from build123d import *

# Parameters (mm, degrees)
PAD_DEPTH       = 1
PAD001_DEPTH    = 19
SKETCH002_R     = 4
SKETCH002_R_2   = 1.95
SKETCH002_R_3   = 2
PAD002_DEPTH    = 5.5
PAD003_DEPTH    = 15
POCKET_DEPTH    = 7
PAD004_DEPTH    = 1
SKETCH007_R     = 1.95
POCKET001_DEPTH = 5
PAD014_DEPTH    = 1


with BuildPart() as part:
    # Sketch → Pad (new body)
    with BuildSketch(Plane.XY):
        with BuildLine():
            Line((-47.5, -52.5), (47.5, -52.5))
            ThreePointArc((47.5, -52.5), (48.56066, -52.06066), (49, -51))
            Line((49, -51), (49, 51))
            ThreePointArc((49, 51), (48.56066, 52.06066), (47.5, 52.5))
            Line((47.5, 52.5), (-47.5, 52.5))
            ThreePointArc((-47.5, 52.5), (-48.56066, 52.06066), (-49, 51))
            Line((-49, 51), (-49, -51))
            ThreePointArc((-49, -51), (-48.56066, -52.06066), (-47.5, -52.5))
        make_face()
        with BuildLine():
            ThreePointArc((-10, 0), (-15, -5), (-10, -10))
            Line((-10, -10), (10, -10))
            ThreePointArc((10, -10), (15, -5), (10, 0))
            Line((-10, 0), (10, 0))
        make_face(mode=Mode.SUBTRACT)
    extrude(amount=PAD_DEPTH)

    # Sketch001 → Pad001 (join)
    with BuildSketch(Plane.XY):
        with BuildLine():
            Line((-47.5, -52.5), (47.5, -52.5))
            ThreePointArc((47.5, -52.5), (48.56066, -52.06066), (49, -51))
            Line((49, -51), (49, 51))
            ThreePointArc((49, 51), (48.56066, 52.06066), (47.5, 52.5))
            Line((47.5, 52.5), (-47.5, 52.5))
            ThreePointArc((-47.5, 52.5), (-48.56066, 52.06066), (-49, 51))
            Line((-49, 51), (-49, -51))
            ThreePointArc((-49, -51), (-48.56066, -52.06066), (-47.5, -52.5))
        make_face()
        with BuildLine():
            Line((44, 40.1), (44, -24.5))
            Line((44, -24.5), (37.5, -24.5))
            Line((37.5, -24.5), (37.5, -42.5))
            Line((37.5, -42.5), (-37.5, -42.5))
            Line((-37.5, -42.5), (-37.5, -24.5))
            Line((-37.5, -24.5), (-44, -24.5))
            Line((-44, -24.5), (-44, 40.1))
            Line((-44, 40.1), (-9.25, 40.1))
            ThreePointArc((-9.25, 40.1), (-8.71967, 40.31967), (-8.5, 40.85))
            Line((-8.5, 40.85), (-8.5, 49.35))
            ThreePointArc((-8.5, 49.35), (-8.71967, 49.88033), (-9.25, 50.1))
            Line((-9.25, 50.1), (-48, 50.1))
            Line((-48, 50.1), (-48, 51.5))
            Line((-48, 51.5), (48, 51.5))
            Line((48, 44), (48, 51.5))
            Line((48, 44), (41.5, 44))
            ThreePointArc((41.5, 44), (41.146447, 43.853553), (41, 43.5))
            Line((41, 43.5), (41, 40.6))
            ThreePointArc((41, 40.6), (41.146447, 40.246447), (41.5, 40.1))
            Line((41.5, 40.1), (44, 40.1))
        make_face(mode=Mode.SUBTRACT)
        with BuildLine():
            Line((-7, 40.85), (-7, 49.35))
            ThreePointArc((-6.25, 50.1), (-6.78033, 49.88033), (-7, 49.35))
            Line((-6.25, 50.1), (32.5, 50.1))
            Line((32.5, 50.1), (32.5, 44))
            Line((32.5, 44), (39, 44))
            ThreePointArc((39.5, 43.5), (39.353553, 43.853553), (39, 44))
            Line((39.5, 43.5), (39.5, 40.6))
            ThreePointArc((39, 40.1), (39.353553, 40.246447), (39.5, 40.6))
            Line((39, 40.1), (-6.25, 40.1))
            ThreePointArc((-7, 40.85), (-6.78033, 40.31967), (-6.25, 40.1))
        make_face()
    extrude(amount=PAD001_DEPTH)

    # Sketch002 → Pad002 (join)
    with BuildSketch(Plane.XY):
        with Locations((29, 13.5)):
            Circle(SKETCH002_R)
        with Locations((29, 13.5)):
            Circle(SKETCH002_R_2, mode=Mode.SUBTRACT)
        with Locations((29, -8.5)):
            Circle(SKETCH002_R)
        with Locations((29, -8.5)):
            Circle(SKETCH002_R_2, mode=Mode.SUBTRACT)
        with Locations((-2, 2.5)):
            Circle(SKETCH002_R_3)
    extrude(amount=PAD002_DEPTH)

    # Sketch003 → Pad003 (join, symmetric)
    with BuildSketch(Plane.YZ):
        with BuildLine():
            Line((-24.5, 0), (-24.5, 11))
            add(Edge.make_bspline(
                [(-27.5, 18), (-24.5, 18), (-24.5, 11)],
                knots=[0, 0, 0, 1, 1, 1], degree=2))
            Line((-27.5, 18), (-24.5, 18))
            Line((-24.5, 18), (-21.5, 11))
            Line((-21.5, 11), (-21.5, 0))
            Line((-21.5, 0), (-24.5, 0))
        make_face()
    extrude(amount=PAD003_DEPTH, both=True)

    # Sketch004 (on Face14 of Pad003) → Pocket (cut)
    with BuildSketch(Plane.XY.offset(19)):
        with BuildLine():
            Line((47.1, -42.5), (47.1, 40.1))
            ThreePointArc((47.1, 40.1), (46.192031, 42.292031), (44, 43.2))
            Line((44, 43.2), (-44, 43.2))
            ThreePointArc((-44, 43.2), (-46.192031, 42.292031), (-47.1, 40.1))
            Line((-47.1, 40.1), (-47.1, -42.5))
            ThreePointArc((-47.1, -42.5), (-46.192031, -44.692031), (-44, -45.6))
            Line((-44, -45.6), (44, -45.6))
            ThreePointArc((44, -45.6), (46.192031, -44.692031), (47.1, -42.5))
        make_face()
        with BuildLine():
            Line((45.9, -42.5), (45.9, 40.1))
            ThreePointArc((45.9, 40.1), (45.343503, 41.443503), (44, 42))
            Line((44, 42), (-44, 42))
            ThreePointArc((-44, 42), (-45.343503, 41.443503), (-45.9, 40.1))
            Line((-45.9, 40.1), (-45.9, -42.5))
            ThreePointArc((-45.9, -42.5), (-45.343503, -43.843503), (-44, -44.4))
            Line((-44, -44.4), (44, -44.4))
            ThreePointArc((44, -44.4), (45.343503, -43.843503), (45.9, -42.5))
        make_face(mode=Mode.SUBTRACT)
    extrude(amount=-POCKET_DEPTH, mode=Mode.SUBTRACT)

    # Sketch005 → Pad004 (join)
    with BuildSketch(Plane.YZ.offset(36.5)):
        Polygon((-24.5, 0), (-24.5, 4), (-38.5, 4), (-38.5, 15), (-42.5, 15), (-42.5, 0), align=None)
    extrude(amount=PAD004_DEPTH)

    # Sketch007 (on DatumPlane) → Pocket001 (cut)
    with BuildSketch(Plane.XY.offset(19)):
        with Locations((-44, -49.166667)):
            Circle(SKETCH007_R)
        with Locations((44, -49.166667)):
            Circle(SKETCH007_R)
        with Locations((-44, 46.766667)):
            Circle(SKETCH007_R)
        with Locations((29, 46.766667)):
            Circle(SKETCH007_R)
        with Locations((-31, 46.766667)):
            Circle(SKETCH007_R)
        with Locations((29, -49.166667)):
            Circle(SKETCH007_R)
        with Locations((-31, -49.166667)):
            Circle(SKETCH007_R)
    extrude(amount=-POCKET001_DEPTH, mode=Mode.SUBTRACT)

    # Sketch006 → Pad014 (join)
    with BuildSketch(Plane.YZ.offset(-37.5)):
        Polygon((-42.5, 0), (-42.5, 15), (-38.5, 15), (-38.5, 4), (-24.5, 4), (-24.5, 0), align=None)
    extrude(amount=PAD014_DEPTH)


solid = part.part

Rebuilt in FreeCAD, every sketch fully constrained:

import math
import FreeCAD as App
import Part
import Sketcher
from FreeCAD import Vector
Q = App.Units.Quantity


def add_polygon(sketch, points):
    """Adds a closed chain of lines whose ends are joined by coincident constraints."""
    first, n = sketch.GeometryCount, len(points)
    for a, b in zip(points, points[1:] + points[:1]):
        sketch.addGeometry(Part.LineSegment(App.Vector(*a, 0), App.Vector(*b, 0)), False)
    for i in range(n):
        sketch.addConstraint(Sketcher.Constraint("Coincident", first + i, 2, first + (i + 1) % n, 1))

doc = App.newDocument("Part")
body = doc.addObject("PartDesign::Body", "Body")

# Sketch on XY plane
sketch1 = doc.addObject("Sketcher::SketchObject", "Sketch")
body.addObject(sketch1)
sketch1.AttachmentSupport = (doc.XY_Plane, [""])
sketch1.MapMode = "FlatFace"
sketch1.addGeometry(Part.LineSegment(Vector(-47.5, -52.5, 0), Vector(47.5, -52.5, 0)), False)
sketch1.addGeometry(Part.ArcOfCircle(Part.Circle(Vector(47.5, -51, 0), Vector(0, 0, 1), 1.5), math.radians(-90), math.radians(0)), False)
sketch1.addGeometry(Part.LineSegment(Vector(49, -51, 0), Vector(49, 51, 0)), False)
sketch1.addGeometry(Part.ArcOfCircle(Part.Circle(Vector(47.5, 51, 0), Vector(0, 0, 1), 1.5), math.radians(0), math.radians(90)), False)
sketch1.addGeometry(Part.LineSegment(Vector(47.5, 52.5, 0), Vector(-47.5, 52.5, 0)), False)
sketch1.addGeometry(Part.ArcOfCircle(Part.Circle(Vector(-47.5, 51, 0), Vector(0, 0, 1), 1.5), math.radians(90), math.radians(180)), False)
sketch1.addGeometry(Part.LineSegment(Vector(-49, 51, 0), Vector(-49, -51, 0)), False)
sketch1.addGeometry(Part.ArcOfCircle(Part.Circle(Vector(-47.5, -51, 0), Vector(0, 0, 1), 1.5), math.radians(-180), math.radians(-90)), False)
sketch1.addGeometry(Part.ArcOfCircle(Part.Circle(Vector(-10, -5, 0), Vector(0, 0, 1), 5), math.radians(90), math.radians(270)), False)
sketch1.addGeometry(Part.LineSegment(Vector(-10, 0, 0), Vector(10, 0, 0)), False)
sketch1.addGeometry(Part.ArcOfCircle(Part.Circle(Vector(10, -5, 0), Vector(0, 0, 1), 5), math.radians(-90), math.radians(90)), False)
sketch1.addGeometry(Part.LineSegment(Vector(10, -10, 0), Vector(-10, -10, 0)), False)
sketch1.addConstraint(Sketcher.Constraint("Tangent", 0, 2, 1, 1))
sketch1.addConstraint(Sketcher.Constraint("Tangent", 1, 2, 2, 1))
sketch1.addConstraint(Sketcher.Constraint("Tangent", 2, 2, 3, 1))
sketch1.addConstraint(Sketcher.Constraint("Tangent", 3, 2, 4, 1))
sketch1.addConstraint(Sketcher.Constraint("Tangent", 4, 2, 5, 1))
sketch1.addConstraint(Sketcher.Constraint("Tangent", 5, 2, 6, 1))
sketch1.addConstraint(Sketcher.Constraint("Tangent", 6, 2, 7, 1))
sketch1.addConstraint(Sketcher.Constraint("Tangent", 7, 2, 0, 1))
sketch1.addConstraint(Sketcher.Constraint("Tangent", 8, 1, 9, 1))
sketch1.addConstraint(Sketcher.Constraint("Tangent", 9, 2, 10, 2))
sketch1.addConstraint(Sketcher.Constraint("Tangent", 10, 1, 11, 1))
sketch1.addConstraint(Sketcher.Constraint("Tangent", 11, 2, 8, 2))
sketch1.addConstraint(Sketcher.Constraint("Horizontal", 0))
sketch1.addConstraint(Sketcher.Constraint("Vertical", 2))
sketch1.addConstraint(Sketcher.Constraint("Horizontal", 4))
sketch1.addConstraint(Sketcher.Constraint("Vertical", 6))
sketch1.addConstraint(Sketcher.Constraint("Horizontal", 9))
sketch1.addConstraint(Sketcher.Constraint("Horizontal", 11))
sketch1.addConstraint(Sketcher.Constraint("Equal", 1, 3))
sketch1.addConstraint(Sketcher.Constraint("Equal", 3, 5))
sketch1.addConstraint(Sketcher.Constraint("Equal", 5, 7))
sketch1.addConstraint(Sketcher.Constraint("Symmetric", 1, 3, 5, 3, -1, 1))
sketch1.addConstraint(Sketcher.Constraint("Symmetric", 8, 1, 9, 2, -1, 1))
sketch1.addConstraint(Sketcher.Constraint("Radius", 8, Q("5 mm")))
sketch1.addConstraint(Sketcher.Constraint("Radius", 1, Q("1.500001 mm")))
sketch1.addConstraint(Sketcher.Constraint("DistanceX", 0, 1, 0, 2, Q("95 mm")))
sketch1.addConstraint(Sketcher.Constraint("DistanceX", 9, 1, 9, 2, Q("20 mm")))
sketch1.addConstraint(Sketcher.Constraint("DistanceY", 2, 1, 2, 2, Q("102 mm")))
pad1 = doc.addObject("PartDesign::Pad", "Pad")
body.addObject(pad1)
pad1.Profile = sketch1
pad1.Length = 1

# Sketch on XY plane
sketch2 = doc.addObject("Sketcher::SketchObject", "Sketch001")
body.addObject(sketch2)
sketch2.AttachmentSupport = (doc.XY_Plane, [""])
sketch2.MapMode = "FlatFace"
sketch2.addGeometry(Part.LineSegment(Vector(-47.5, -52.5, 0), Vector(47.5, -52.5, 0)), False)
sketch2.addGeometry(Part.ArcOfCircle(Part.Circle(Vector(47.5, -51, 0), Vector(0, 0, 1), 1.5), math.radians(-90), math.radians(0)), False)
sketch2.addGeometry(Part.LineSegment(Vector(49, -51, 0), Vector(49, 51, 0)), False)
sketch2.addGeometry(Part.ArcOfCircle(Part.Circle(Vector(47.5, 51, 0), Vector(0, 0, 1), 1.5), math.radians(0), math.radians(90)), False)
sketch2.addGeometry(Part.LineSegment(Vector(47.5, 52.5, 0), Vector(-47.5, 52.5, 0)), False)
sketch2.addGeometry(Part.ArcOfCircle(Part.Circle(Vector(-47.5, 51, 0), Vector(0, 0, 1), 1.5), math.radians(90), math.radians(180)), False)
sketch2.addGeometry(Part.LineSegment(Vector(-49, 51, 0), Vector(-49, -51, 0)), False)
sketch2.addGeometry(Part.ArcOfCircle(Part.Circle(Vector(-47.5, -51, 0), Vector(0, 0, 1), 1.5), math.radians(-180), math.radians(-90)), False)
sketch2.addGeometry(Part.LineSegment(Vector(41.5, 40.1, 0), Vector(44, 40.1, 0)), False)
sketch2.addGeometry(Part.LineSegment(Vector(44, 40.1, 0), Vector(44, -24.5, 0)), False)
sketch2.addGeometry(Part.LineSegment(Vector(44, -24.5, 0), Vector(37.5, -24.5, 0)), False)
sketch2.addGeometry(Part.LineSegment(Vector(37.5, -24.5, 0), Vector(37.5, -42.5, 0)), False)
sketch2.addGeometry(Part.LineSegment(Vector(37.5, -42.5, 0), Vector(-37.5, -42.5, 0)), False)
sketch2.addGeometry(Part.LineSegment(Vector(-37.5, -42.5, 0), Vector(-37.5, -24.5, 0)), False)
sketch2.addGeometry(Part.LineSegment(Vector(-37.5, -24.5, 0), Vector(-44, -24.5, 0)), False)
sketch2.addGeometry(Part.LineSegment(Vector(-44, -24.5, 0), Vector(-44, 40.1, 0)), False)
sketch2.addGeometry(Part.LineSegment(Vector(-44, 40.1, 0), Vector(-9.2, 40.1, 0)), False)
sketch2.addGeometry(Part.ArcOfCircle(Part.Circle(Vector(-9.3, 40.9, 0), Vector(0, 0, 1), 0.8), math.radians(-90), math.radians(0)), False)
sketch2.addGeometry(Part.LineSegment(Vector(-8.5, 40.9, 0), Vector(-8.5, 49.4, 0)), False)
sketch2.addGeometry(Part.ArcOfCircle(Part.Circle(Vector(-9.3, 49.3, 0), Vector(0, 0, 1), 0.8), math.radians(0), math.radians(90)), False)
sketch2.addGeometry(Part.LineSegment(Vector(-9.2, 50.1, 0), Vector(-48, 50.1, 0)), False)
sketch2.addGeometry(Part.LineSegment(Vector(-48, 50.1, 0), Vector(-48, 51.5, 0)), False)
sketch2.addGeometry(Part.LineSegment(Vector(-48, 51.5, 0), Vector(48, 51.5, 0)), False)
sketch2.addGeometry(Part.LineSegment(Vector(48, 51.5, 0), Vector(48, 44, 0)), False)
sketch2.addGeometry(Part.LineSegment(Vector(48, 44, 0), Vector(41.5, 44, 0)), False)
sketch2.addGeometry(Part.ArcOfCircle(Part.Circle(Vector(41.5, 43.5, 0), Vector(0, 0, 1), 0.5), math.radians(90), math.radians(180)), False)
sketch2.addGeometry(Part.LineSegment(Vector(41, 43.5, 0), Vector(41, 40.6, 0)), False)
sketch2.addGeometry(Part.ArcOfCircle(Part.Circle(Vector(41.5, 40.6, 0), Vector(0, 0, 1), 0.5), math.radians(-180), math.radians(-90)), False)
sketch2.addGeometry(Part.LineSegment(Vector(-7, 49.4, 0), Vector(-7, 40.9, 0)), False)
sketch2.addGeometry(Part.ArcOfCircle(Part.Circle(Vector(-6.2, 40.9, 0), Vector(0, 0, 1), 0.8), math.radians(-180), math.radians(-90)), False)
sketch2.addGeometry(Part.LineSegment(Vector(-6.2, 40.1, 0), Vector(39, 40.1, 0)), False)
sketch2.addGeometry(Part.ArcOfCircle(Part.Circle(Vector(39, 40.6, 0), Vector(0, 0, 1), 0.5), math.radians(-90), math.radians(0)), False)
sketch2.addGeometry(Part.LineSegment(Vector(39.5, 40.6, 0), Vector(39.5, 43.5, 0)), False)
sketch2.addGeometry(Part.ArcOfCircle(Part.Circle(Vector(39, 43.5, 0), Vector(0, 0, 1), 0.5), math.radians(0), math.radians(90)), False)
sketch2.addGeometry(Part.LineSegment(Vector(39, 44, 0), Vector(32.5, 44, 0)), False)
sketch2.addGeometry(Part.LineSegment(Vector(32.5, 44, 0), Vector(32.5, 50.1, 0)), False)
sketch2.addGeometry(Part.LineSegment(Vector(32.5, 50.1, 0), Vector(-6.2, 50.1, 0)), False)
sketch2.addGeometry(Part.ArcOfCircle(Part.Circle(Vector(-6.2, 49.3, 0), Vector(0, 0, 1), 0.8), math.radians(90), math.radians(180)), False)
sketch2.addConstraint(Sketcher.Constraint("Tangent", 0, 2, 1, 1))
sketch2.addConstraint(Sketcher.Constraint("Tangent", 1, 2, 2, 1))
sketch2.addConstraint(Sketcher.Constraint("Tangent", 2, 2, 3, 1))
sketch2.addConstraint(Sketcher.Constraint("Tangent", 3, 2, 4, 1))
sketch2.addConstraint(Sketcher.Constraint("Tangent", 4, 2, 5, 1))
sketch2.addConstraint(Sketcher.Constraint("Tangent", 5, 2, 6, 1))
sketch2.addConstraint(Sketcher.Constraint("Tangent", 6, 2, 7, 1))
sketch2.addConstraint(Sketcher.Constraint("Tangent", 7, 2, 0, 1))
sketch2.addConstraint(Sketcher.Constraint("Coincident", 8, 2, 9, 1))
sketch2.addConstraint(Sketcher.Constraint("Coincident", 9, 2, 10, 1))
sketch2.addConstraint(Sketcher.Constraint("Coincident", 10, 2, 11, 1))
sketch2.addConstraint(Sketcher.Constraint("Coincident", 11, 2, 12, 1))
sketch2.addConstraint(Sketcher.Constraint("Coincident", 12, 2, 13, 1))
sketch2.addConstraint(Sketcher.Constraint("Coincident", 13, 2, 14, 1))
sketch2.addConstraint(Sketcher.Constraint("Coincident", 14, 2, 15, 1))
sketch2.addConstraint(Sketcher.Constraint("Coincident", 15, 2, 16, 1))
sketch2.addConstraint(Sketcher.Constraint("Tangent", 16, 2, 17, 1))
sketch2.addConstraint(Sketcher.Constraint("Tangent", 17, 2, 18, 1))
sketch2.addConstraint(Sketcher.Constraint("Tangent", 18, 2, 19, 1))
sketch2.addConstraint(Sketcher.Constraint("Tangent", 19, 2, 20, 1))
sketch2.addConstraint(Sketcher.Constraint("Coincident", 20, 2, 21, 1))
sketch2.addConstraint(Sketcher.Constraint("Coincident", 21, 2, 22, 1))
sketch2.addConstraint(Sketcher.Constraint("Coincident", 22, 2, 23, 1))
sketch2.addConstraint(Sketcher.Constraint("Coincident", 23, 2, 24, 1))
sketch2.addConstraint(Sketcher.Constraint("Coincident", 24, 2, 25, 1))
sketch2.addConstraint(Sketcher.Constraint("Coincident", 25, 2, 26, 1))
sketch2.addConstraint(Sketcher.Constraint("Coincident", 26, 2, 27, 1))
sketch2.addConstraint(Sketcher.Constraint("Coincident", 27, 2, 8, 1))
sketch2.addConstraint(Sketcher.Constraint("Tangent", 28, 2, 29, 1))
sketch2.addConstraint(Sketcher.Constraint("Tangent", 29, 2, 30, 1))
sketch2.addConstraint(Sketcher.Constraint("Coincident", 30, 2, 31, 1))
sketch2.addConstraint(Sketcher.Constraint("Coincident", 31, 2, 32, 1))
sketch2.addConstraint(Sketcher.Constraint("Coincident", 32, 2, 33, 1))
sketch2.addConstraint(Sketcher.Constraint("Coincident", 33, 2, 34, 1))
sketch2.addConstraint(Sketcher.Constraint("Coincident", 34, 2, 35, 1))
sketch2.addConstraint(Sketcher.Constraint("Coincident", 35, 2, 36, 1))
sketch2.addConstraint(Sketcher.Constraint("Tangent", 36, 2, 37, 1))
sketch2.addConstraint(Sketcher.Constraint("Tangent", 37, 2, 28, 1))
sketch2.addConstraint(Sketcher.Constraint("Horizontal", 0))
sketch2.addConstraint(Sketcher.Constraint("Vertical", 2))
sketch2.addConstraint(Sketcher.Constraint("Horizontal", 4))
sketch2.addConstraint(Sketcher.Constraint("Vertical", 6))
sketch2.addConstraint(Sketcher.Constraint("Horizontal", 8))
sketch2.addConstraint(Sketcher.Constraint("Vertical", 9))
sketch2.addConstraint(Sketcher.Constraint("Horizontal", 10))
sketch2.addConstraint(Sketcher.Constraint("Vertical", 11))
sketch2.addConstraint(Sketcher.Constraint("Horizontal", 12))
sketch2.addConstraint(Sketcher.Constraint("Vertical", 13))
sketch2.addConstraint(Sketcher.Constraint("Horizontal", 14))
sketch2.addConstraint(Sketcher.Constraint("Vertical", 15))
sketch2.addConstraint(Sketcher.Constraint("Horizontal", 16))
sketch2.addConstraint(Sketcher.Constraint("Vertical", 18))
sketch2.addConstraint(Sketcher.Constraint("Horizontal", 20))
sketch2.addConstraint(Sketcher.Constraint("Vertical", 21))
sketch2.addConstraint(Sketcher.Constraint("Horizontal", 22))
sketch2.addConstraint(Sketcher.Constraint("Vertical", 23))
sketch2.addConstraint(Sketcher.Constraint("Horizontal", 24))
sketch2.addConstraint(Sketcher.Constraint("Vertical", 26))
sketch2.addConstraint(Sketcher.Constraint("Vertical", 28))
sketch2.addConstraint(Sketcher.Constraint("Horizontal", 30))
sketch2.addConstraint(Sketcher.Constraint("Vertical", 32))
sketch2.addConstraint(Sketcher.Constraint("Horizontal", 34))
sketch2.addConstraint(Sketcher.Constraint("Vertical", 35))
sketch2.addConstraint(Sketcher.Constraint("Horizontal", 36))
sketch2.addConstraint(Sketcher.Constraint("Equal", 1, 3))
sketch2.addConstraint(Sketcher.Constraint("Equal", 3, 5))
sketch2.addConstraint(Sketcher.Constraint("Equal", 5, 7))
sketch2.addConstraint(Sketcher.Constraint("Equal", 17, 19))
sketch2.addConstraint(Sketcher.Constraint("Equal", 25, 27))
sketch2.addConstraint(Sketcher.Constraint("Equal", 19, 29))
sketch2.addConstraint(Sketcher.Constraint("Equal", 27, 31))
sketch2.addConstraint(Sketcher.Constraint("Equal", 31, 33))
sketch2.addConstraint(Sketcher.Constraint("Equal", 29, 37))
sketch2.addConstraint(Sketcher.Constraint("Symmetric", 1, 3, 5, 3, -1, 1))
sketch2.addConstraint(Sketcher.Constraint("Symmetric", 10, 2, 13, 2, -2))
sketch2.addConstraint(Sketcher.Constraint("Symmetric", 8, 2, 15, 2, -2))
sketch2.addConstraint(Sketcher.Constraint("Horizontal", 17, 3, 29, 3))
sketch2.addConstraint(Sketcher.Constraint("Horizontal", 25, 3, 33, 3))
sketch2.addConstraint(Sketcher.Constraint("Horizontal", 19, 3, 37, 3))
sketch2.addConstraint(Sketcher.Constraint("Horizontal", 33, 3, 25, 2))
sketch2.addConstraint(Sketcher.Constraint("Horizontal", 31, 3, 26, 2))
sketch2.addConstraint(Sketcher.Constraint("Horizontal", 26, 2, 31, 2))
sketch2.addConstraint(Sketcher.Constraint("Horizontal", 25, 2, 32, 2))
sketch2.addConstraint(Sketcher.Constraint("Vertical", 27, 3, 24, 2))
sketch2.addConstraint(Sketcher.Constraint("Vertical", 24, 2, 27, 2))
sketch2.addConstraint(Sketcher.Constraint("Vertical", 33, 3, 30, 2))
sketch2.addConstraint(Sketcher.Constraint("Vertical", 30, 2, 33, 2))
sketch2.addConstraint(Sketcher.Constraint("Equal", 14, 24))
sketch2.addConstraint(Sketcher.Constraint("Equal", 24, 34))
sketch2.addConstraint(Sketcher.Constraint("Equal", 20, 36))
sketch2.addConstraint(Sketcher.Constraint("Radius", 1, Q("1.500001 mm")))
sketch2.addConstraint(Sketcher.Constraint("Radius", 25, Q("0.500001 mm")))
sketch2.addConstraint(Sketcher.Constraint("DistanceX", 0, 1, 0, 2, Q("95 mm")))
sketch2.addConstraint(Sketcher.Constraint("DistanceX", 12, 2, 12, 1, Q("75 mm")))
sketch2.addConstraint(Sketcher.Constraint("DistanceX", 22, 1, 22, 2, Q("96 mm")))
sketch2.addConstraint(Sketcher.Constraint("DistanceY", 2, 1, 2, 2, Q("102 mm")))
sketch2.addConstraint(Sketcher.Constraint("DistanceY", 11, 2, 11, 1, Q("18 mm")))
sketch2.addConstraint(Sketcher.Constraint("Radius", 17, Q("0.75 mm")))
sketch2.addConstraint(Sketcher.Constraint("DistanceX", 8, 1, 8, 2, Q("2.5 mm")))
sketch2.addConstraint(Sketcher.Constraint("DistanceX", 10, 2, 10, 1, Q("6.5 mm")))
sketch2.addConstraint(Sketcher.Constraint("DistanceY", 9, 2, 9, 1, Q("64.6 mm")))
sketch2.addConstraint(Sketcher.Constraint("DistanceY", 18, 1, 18, 2, Q("8.5 mm")))
sketch2.addConstraint(Sketcher.Constraint("DistanceY", 21, 1, 21, 2, Q("1.4 mm")))
sketch2.addConstraint(Sketcher.Constraint("DistanceY", 23, 2, 23, 1, Q("7.5 mm")))
sketch2.addConstraint(Sketcher.Constraint("DistanceX", -1, 1, 31, 3, Q("38.999999 mm")))
sketch2.addConstraint(Sketcher.Constraint("DistanceY", -1, 1, 23, 2, Q("44 mm")))
sketch2.addConstraint(Sketcher.Constraint("DistanceX", 28, 2, -1, 1, Q("7 mm")))
pad2 = doc.addObject("PartDesign::Pad", "Pad001")
body.addObject(pad2)
pad2.Profile = sketch2
pad2.Length = 19

# Sketch on XY plane
sketch3 = doc.addObject("Sketcher::SketchObject", "Sketch002")
body.addObject(sketch3)
sketch3.AttachmentSupport = (doc.XY_Plane, [""])
sketch3.MapMode = "FlatFace"
sketch3.addGeometry(Part.Circle(Vector(29, 13.5, 0), Vector(0, 0, 1), 4), False)
sketch3.addGeometry(Part.Circle(Vector(29, 13.5, 0), Vector(0, 0, 1), 1.9), False)
sketch3.addGeometry(Part.Circle(Vector(29, -8.5, 0), Vector(0, 0, 1), 4), False)
sketch3.addGeometry(Part.Circle(Vector(29, -8.5, 0), Vector(0, 0, 1), 1.9), False)
sketch3.addGeometry(Part.Circle(Vector(-2, 2.5, 0), Vector(0, 0, 1), 2), False)
sketch3.addConstraint(Sketcher.Constraint("Coincident", 1, 3, 0, 3))
sketch3.addConstraint(Sketcher.Constraint("Coincident", 3, 3, 2, 3))
sketch3.addConstraint(Sketcher.Constraint("Equal", 0, 2))
sketch3.addConstraint(Sketcher.Constraint("Equal", 1, 3))
sketch3.addConstraint(Sketcher.Constraint("Vertical", 1, 3, 2, 3))
sketch3.addConstraint(Sketcher.Constraint("Diameter", 0, Q("8 mm")))
sketch3.addConstraint(Sketcher.Constraint("Diameter", 4, Q("4 mm")))
sketch3.addConstraint(Sketcher.Constraint("Diameter", 1, Q("3.9 mm")))
sketch3.addConstraint(Sketcher.Constraint("DistanceX", -1, 1, 0, 3, Q("29 mm")))
sketch3.addConstraint(Sketcher.Constraint("DistanceX", 4, 3, -1, 1, Q("2 mm")))
sketch3.addConstraint(Sketcher.Constraint("DistanceY", 2, 3, 0, 3, Q("22 mm")))
sketch3.addConstraint(Sketcher.Constraint("DistanceY", 4, 3, 0, 3, Q("11 mm")))
sketch3.addConstraint(Sketcher.Constraint("DistanceY", -1, 1, 0, 3, Q("13.5 mm")))
pad3 = doc.addObject("PartDesign::Pad", "Pad002")
body.addObject(pad3)
pad3.Profile = sketch3
pad3.Length = 5.5

# Sketch on YZ plane
sketch4 = doc.addObject("Sketcher::SketchObject", "Sketch003")
body.addObject(sketch4)
sketch4.AttachmentSupport = (doc.YZ_Plane, [""])
sketch4.MapMode = "FlatFace"
sketch4.addGeometry(Part.LineSegment(Vector(-24.5, 11, 0), Vector(-24.5, 0, 0)), False)
sketch4.addGeometry(Part.LineSegment(Vector(-24.5, 0, 0), Vector(-21.5, 0, 0)), False)
sketch4.addGeometry(Part.LineSegment(Vector(-21.5, 0, 0), Vector(-21.5, 11, 0)), False)
sketch4.addGeometry(Part.LineSegment(Vector(-21.5, 11, 0), Vector(-24.5, 18, 0)), False)
sketch4.addGeometry(Part.LineSegment(Vector(-24.5, 18, 0), Vector(-27.5, 18, 0)), False)
sketch4.addGeometry(Part.BSplineCurve([Vector(-27.5, 18, 0), Vector(-24.5, 18, 0), Vector(-24.5, 11, 0)], [3, 3], [0, 1], False, 2, [1, 1, 1], False), False)
sketch4.addConstraint(Sketcher.Constraint("Block", 5))
sketch4.addConstraint(Sketcher.Constraint("Coincident", 0, 2, 1, 1))
sketch4.addConstraint(Sketcher.Constraint("Coincident", 1, 2, 2, 1))
sketch4.addConstraint(Sketcher.Constraint("Coincident", 2, 2, 3, 1))
sketch4.addConstraint(Sketcher.Constraint("Coincident", 3, 2, 4, 1))
sketch4.addConstraint(Sketcher.Constraint("Coincident", 4, 2, 5, 1))
sketch4.addConstraint(Sketcher.Constraint("Coincident", 5, 2, 0, 1))
sketch4.addConstraint(Sketcher.Constraint("Vertical", 0))
sketch4.addConstraint(Sketcher.Constraint("Horizontal", 1))
sketch4.addConstraint(Sketcher.Constraint("Vertical", 2))
sketch4.addConstraint(Sketcher.Constraint("Horizontal", 4))
sketch4.addConstraint(Sketcher.Constraint("PointOnObject", 0, 2, -1))
sketch4.addConstraint(Sketcher.Constraint("Vertical", 0, 2, 3, 2))
sketch4.addConstraint(Sketcher.Constraint("Equal", 1, 4))
sketch4.addConstraint(Sketcher.Constraint("Equal", 0, 2))
pad4 = doc.addObject("PartDesign::Pad", "Pad003")
body.addObject(pad4)
pad4.Profile = sketch4
pad4.Length = 30
pad4.Midplane = True

# Sketch on XY plane
sketch5 = doc.addObject("Sketcher::SketchObject", "Sketch004")
body.addObject(sketch5)
sketch5.AttachmentSupport = (doc.XY_Plane, [""])
sketch5.MapMode = "FlatFace"
sketch5.AttachmentOffset = App.Placement(Vector(0, 0, 19), App.Rotation())
sketch5.addGeometry(Part.LineSegment(Vector(47.1, -42.5, 0), Vector(47.1, 40.1, 0)), False)
sketch5.addGeometry(Part.ArcOfCircle(Part.Circle(Vector(44, 40.1, 0), Vector(0, 0, 1), 3.1), math.radians(0), math.radians(90)), False)
sketch5.addGeometry(Part.LineSegment(Vector(44, 43.2, 0), Vector(-44, 43.2, 0)), False)
sketch5.addGeometry(Part.ArcOfCircle(Part.Circle(Vector(-44, 40.1, 0), Vector(0, 0, 1), 3.1), math.radians(90), math.radians(180)), False)
sketch5.addGeometry(Part.LineSegment(Vector(-47.1, 40.1, 0), Vector(-47.1, -42.5, 0)), False)
sketch5.addGeometry(Part.ArcOfCircle(Part.Circle(Vector(-44, -42.5, 0), Vector(0, 0, 1), 3.1), math.radians(-180), math.radians(-90)), False)
sketch5.addGeometry(Part.LineSegment(Vector(-44, -45.6, 0), Vector(44, -45.6, 0)), False)
sketch5.addGeometry(Part.ArcOfCircle(Part.Circle(Vector(44, -42.5, 0), Vector(0, 0, 1), 3.1), math.radians(-90), math.radians(0)), False)
sketch5.addGeometry(Part.LineSegment(Vector(45.9, 40.1, 0), Vector(45.9, -42.5, 0)), False)
sketch5.addGeometry(Part.ArcOfCircle(Part.Circle(Vector(44, -42.5, 0), Vector(0, 0, 1), 1.9), math.radians(-90), math.radians(0)), False)
sketch5.addGeometry(Part.LineSegment(Vector(44, -44.4, 0), Vector(-44, -44.4, 0)), False)
sketch5.addGeometry(Part.ArcOfCircle(Part.Circle(Vector(-44, -42.5, 0), Vector(0, 0, 1), 1.9), math.radians(180), math.radians(270)), False)
sketch5.addGeometry(Part.LineSegment(Vector(-45.9, -42.5, 0), Vector(-45.9, 40.1, 0)), False)
sketch5.addGeometry(Part.ArcOfCircle(Part.Circle(Vector(-44, 40.1, 0), Vector(0, 0, 1), 1.9), math.radians(90), math.radians(180)), False)
sketch5.addGeometry(Part.LineSegment(Vector(-44, 42, 0), Vector(44, 42, 0)), False)
sketch5.addGeometry(Part.ArcOfCircle(Part.Circle(Vector(44, 40.1, 0), Vector(0, 0, 1), 1.9), math.radians(0), math.radians(90)), False)
sketch5.addConstraint(Sketcher.Constraint("Tangent", 0, 2, 1, 1))
sketch5.addConstraint(Sketcher.Constraint("Tangent", 1, 2, 2, 1))
sketch5.addConstraint(Sketcher.Constraint("Tangent", 2, 2, 3, 1))
sketch5.addConstraint(Sketcher.Constraint("Tangent", 3, 2, 4, 1))
sketch5.addConstraint(Sketcher.Constraint("Tangent", 4, 2, 5, 1))
sketch5.addConstraint(Sketcher.Constraint("Tangent", 5, 2, 6, 1))
sketch5.addConstraint(Sketcher.Constraint("Tangent", 6, 2, 7, 1))
sketch5.addConstraint(Sketcher.Constraint("Tangent", 7, 2, 0, 1))
sketch5.addConstraint(Sketcher.Constraint("Tangent", 8, 2, 9, 2))
sketch5.addConstraint(Sketcher.Constraint("Tangent", 9, 1, 10, 1))
sketch5.addConstraint(Sketcher.Constraint("Tangent", 10, 2, 11, 2))
sketch5.addConstraint(Sketcher.Constraint("Tangent", 11, 1, 12, 1))
sketch5.addConstraint(Sketcher.Constraint("Tangent", 12, 2, 13, 2))
sketch5.addConstraint(Sketcher.Constraint("Tangent", 13, 1, 14, 1))
sketch5.addConstraint(Sketcher.Constraint("Tangent", 14, 2, 15, 2))
sketch5.addConstraint(Sketcher.Constraint("Tangent", 15, 1, 8, 1))
sketch5.addConstraint(Sketcher.Constraint("Vertical", 0))
sketch5.addConstraint(Sketcher.Constraint("Horizontal", 2))
sketch5.addConstraint(Sketcher.Constraint("Vertical", 4))
sketch5.addConstraint(Sketcher.Constraint("Horizontal", 6))
sketch5.addConstraint(Sketcher.Constraint("Vertical", 8))
sketch5.addConstraint(Sketcher.Constraint("Horizontal", 10))
sketch5.addConstraint(Sketcher.Constraint("Vertical", 12))
sketch5.addConstraint(Sketcher.Constraint("Horizontal", 14))
sketch5.addConstraint(Sketcher.Constraint("Coincident", 9, 3, 7, 3))
sketch5.addConstraint(Sketcher.Constraint("Coincident", 11, 3, 5, 3))
sketch5.addConstraint(Sketcher.Constraint("Coincident", 13, 3, 3, 3))
sketch5.addConstraint(Sketcher.Constraint("Equal", 1, 3))
sketch5.addConstraint(Sketcher.Constraint("Equal", 3, 5))
sketch5.addConstraint(Sketcher.Constraint("Equal", 5, 7))
sketch5.addConstraint(Sketcher.Constraint("Equal", 13, 15))
sketch5.addConstraint(Sketcher.Constraint("Radius", 1, Q("3.1 mm")))
sketch5.addConstraint(Sketcher.Constraint("Radius", 9, Q("1.9 mm")))
sketch5.addConstraint(Sketcher.Constraint("DistanceX", 2, 2, 2, 1, Q("88 mm")))
sketch5.addConstraint(Sketcher.Constraint("DistanceY", 0, 1, 0, 2, Q("82.6 mm")))
sketch5.addConstraint(Sketcher.Constraint("DistanceX", -1, 1, 1, 3, Q("44 mm")))
sketch5.addConstraint(Sketcher.Constraint("DistanceY", -1, 1, 13, 1, Q("42 mm")))
pocket1 = doc.addObject("PartDesign::Pocket", "Pocket")
body.addObject(pocket1)
pocket1.Profile = sketch5
pocket1.Length = 7

# Sketch on YZ plane
sketch6 = doc.addObject("Sketcher::SketchObject", "Sketch005")
body.addObject(sketch6)
sketch6.AttachmentSupport = (doc.YZ_Plane, [""])
sketch6.MapMode = "FlatFace"
sketch6.AttachmentOffset = App.Placement(Vector(0, 0, 36.5), App.Rotation())
add_polygon(sketch6, [(-24.5, 0), (-24.5, 4), (-38.5, 4), (-38.5, 15), (-42.5, 15), (-42.5, 0)])  # lines 0-5
sketch6.addConstraint(Sketcher.Constraint("Vertical", 0))
sketch6.addConstraint(Sketcher.Constraint("Horizontal", 1))
sketch6.addConstraint(Sketcher.Constraint("Vertical", 2))
sketch6.addConstraint(Sketcher.Constraint("Horizontal", 3))
sketch6.addConstraint(Sketcher.Constraint("Vertical", 4))
sketch6.addConstraint(Sketcher.Constraint("Horizontal", 5))
sketch6.addConstraint(Sketcher.Constraint("PointOnObject", 4, 2, -1))
sketch6.addConstraint(Sketcher.Constraint("Equal", 3, 0))
sketch6.addConstraint(Sketcher.Constraint("DistanceX", 1, 2, 1, 1, Q("14 mm")))
sketch6.addConstraint(Sketcher.Constraint("DistanceX", 3, 2, 3, 1, Q("4 mm")))
sketch6.addConstraint(Sketcher.Constraint("DistanceY", 2, 1, 2, 2, Q("11 mm")))
sketch6.addConstraint(Sketcher.Constraint("DistanceX", 0, 2, -1, 1, Q("24.5 mm")))
pad5 = doc.addObject("PartDesign::Pad", "Pad004")
body.addObject(pad5)
pad5.Profile = sketch6
pad5.Length = 1

# Sketch on XY plane
sketch7 = doc.addObject("Sketcher::SketchObject", "Sketch006")
body.addObject(sketch7)
sketch7.AttachmentSupport = (doc.XY_Plane, [""])
sketch7.MapMode = "FlatFace"
sketch7.AttachmentOffset = App.Placement(Vector(0, 0, 19), App.Rotation())
sketch7.addGeometry(Part.Circle(Vector(-44, -49.2, 0), Vector(0, 0, 1), 1.9), False)
sketch7.addGeometry(Part.Circle(Vector(44, -49.2, 0), Vector(0, 0, 1), 1.9), False)
sketch7.addGeometry(Part.Circle(Vector(-44, 46.8, 0), Vector(0, 0, 1), 1.9), False)
sketch7.addGeometry(Part.Circle(Vector(29, 46.8, 0), Vector(0, 0, 1), 1.9), False)
sketch7.addGeometry(Part.Circle(Vector(-31, 46.8, 0), Vector(0, 0, 1), 1.9), False)
sketch7.addGeometry(Part.Circle(Vector(29, -49.2, 0), Vector(0, 0, 1), 1.9), False)
sketch7.addGeometry(Part.Circle(Vector(-31, -49.2, 0), Vector(0, 0, 1), 1.9), False)
sketch7.addConstraint(Sketcher.Constraint("Equal", 0, 1))
sketch7.addConstraint(Sketcher.Constraint("Equal", 1, 2))
sketch7.addConstraint(Sketcher.Constraint("Equal", 2, 3))
sketch7.addConstraint(Sketcher.Constraint("Equal", 3, 4))
sketch7.addConstraint(Sketcher.Constraint("Equal", 4, 5))
sketch7.addConstraint(Sketcher.Constraint("Equal", 5, 6))
sketch7.addConstraint(Sketcher.Constraint("Symmetric", 0, 3, 1, 3, -2))
sketch7.addConstraint(Sketcher.Constraint("Horizontal", 2, 3, 3, 3))
sketch7.addConstraint(Sketcher.Constraint("Horizontal", 3, 3, 4, 3))
sketch7.addConstraint(Sketcher.Constraint("Horizontal", 1, 3, 5, 3))
sketch7.addConstraint(Sketcher.Constraint("Horizontal", 5, 3, 6, 3))
sketch7.addConstraint(Sketcher.Constraint("Vertical", 0, 3, 2, 3))
sketch7.addConstraint(Sketcher.Constraint("Vertical", 3, 3, 5, 3))
sketch7.addConstraint(Sketcher.Constraint("Vertical", 4, 3, 6, 3))
sketch7.addConstraint(Sketcher.Constraint("Diameter", 0, Q("3.9 mm")))
sketch7.addConstraint(Sketcher.Constraint("DistanceX", 0, 3, -1, 1, Q("44 mm")))
sketch7.addConstraint(Sketcher.Constraint("DistanceX", -1, 1, 3, 3, Q("29 mm")))
sketch7.addConstraint(Sketcher.Constraint("DistanceX", 4, 3, -1, 1, Q("31 mm")))
sketch7.addConstraint(Sketcher.Constraint("DistanceY", 0, 3, -1, 1, Q("49.166667 mm")))
sketch7.addConstraint(Sketcher.Constraint("DistanceY", -1, 1, 2, 3, Q("46.766667 mm")))
pocket2 = doc.addObject("PartDesign::Pocket", "Pocket001")
body.addObject(pocket2)
pocket2.Profile = sketch7
pocket2.Length = 5

# Sketch on YZ plane
sketch8 = doc.addObject("Sketcher::SketchObject", "Sketch007")
body.addObject(sketch8)
sketch8.AttachmentSupport = (doc.YZ_Plane, [""])
sketch8.MapMode = "FlatFace"
sketch8.AttachmentOffset = App.Placement(Vector(0, 0, -37.5), App.Rotation())
add_polygon(sketch8, [(-42.5, 15), (-42.5, 0), (-24.5, 0), (-24.5, 4), (-38.5, 4), (-38.5, 15)])  # lines 0-5
sketch8.addConstraint(Sketcher.Constraint("Vertical", 0))
sketch8.addConstraint(Sketcher.Constraint("Horizontal", 1))
sketch8.addConstraint(Sketcher.Constraint("Vertical", 2))
sketch8.addConstraint(Sketcher.Constraint("Horizontal", 3))
sketch8.addConstraint(Sketcher.Constraint("Vertical", 4))
sketch8.addConstraint(Sketcher.Constraint("Horizontal", 5))
sketch8.addConstraint(Sketcher.Constraint("PointOnObject", 0, 2, -1))
sketch8.addConstraint(Sketcher.Constraint("Equal", 5, 2))
sketch8.addConstraint(Sketcher.Constraint("DistanceX", 1, 1, 1, 2, Q("18 mm")))
sketch8.addConstraint(Sketcher.Constraint("DistanceX", 3, 2, 3, 1, Q("14 mm")))
sketch8.addConstraint(Sketcher.Constraint("DistanceY", 0, 2, 0, 1, Q("15 mm")))
sketch8.addConstraint(Sketcher.Constraint("DistanceX", 0, 2, -1, 1, Q("42.5 mm")))
pad6 = doc.addObject("PartDesign::Pad", "Pad005")
body.addObject(pad6)
pad6.Profile = sketch8
pad6.Length = 1

doc.recompute()
